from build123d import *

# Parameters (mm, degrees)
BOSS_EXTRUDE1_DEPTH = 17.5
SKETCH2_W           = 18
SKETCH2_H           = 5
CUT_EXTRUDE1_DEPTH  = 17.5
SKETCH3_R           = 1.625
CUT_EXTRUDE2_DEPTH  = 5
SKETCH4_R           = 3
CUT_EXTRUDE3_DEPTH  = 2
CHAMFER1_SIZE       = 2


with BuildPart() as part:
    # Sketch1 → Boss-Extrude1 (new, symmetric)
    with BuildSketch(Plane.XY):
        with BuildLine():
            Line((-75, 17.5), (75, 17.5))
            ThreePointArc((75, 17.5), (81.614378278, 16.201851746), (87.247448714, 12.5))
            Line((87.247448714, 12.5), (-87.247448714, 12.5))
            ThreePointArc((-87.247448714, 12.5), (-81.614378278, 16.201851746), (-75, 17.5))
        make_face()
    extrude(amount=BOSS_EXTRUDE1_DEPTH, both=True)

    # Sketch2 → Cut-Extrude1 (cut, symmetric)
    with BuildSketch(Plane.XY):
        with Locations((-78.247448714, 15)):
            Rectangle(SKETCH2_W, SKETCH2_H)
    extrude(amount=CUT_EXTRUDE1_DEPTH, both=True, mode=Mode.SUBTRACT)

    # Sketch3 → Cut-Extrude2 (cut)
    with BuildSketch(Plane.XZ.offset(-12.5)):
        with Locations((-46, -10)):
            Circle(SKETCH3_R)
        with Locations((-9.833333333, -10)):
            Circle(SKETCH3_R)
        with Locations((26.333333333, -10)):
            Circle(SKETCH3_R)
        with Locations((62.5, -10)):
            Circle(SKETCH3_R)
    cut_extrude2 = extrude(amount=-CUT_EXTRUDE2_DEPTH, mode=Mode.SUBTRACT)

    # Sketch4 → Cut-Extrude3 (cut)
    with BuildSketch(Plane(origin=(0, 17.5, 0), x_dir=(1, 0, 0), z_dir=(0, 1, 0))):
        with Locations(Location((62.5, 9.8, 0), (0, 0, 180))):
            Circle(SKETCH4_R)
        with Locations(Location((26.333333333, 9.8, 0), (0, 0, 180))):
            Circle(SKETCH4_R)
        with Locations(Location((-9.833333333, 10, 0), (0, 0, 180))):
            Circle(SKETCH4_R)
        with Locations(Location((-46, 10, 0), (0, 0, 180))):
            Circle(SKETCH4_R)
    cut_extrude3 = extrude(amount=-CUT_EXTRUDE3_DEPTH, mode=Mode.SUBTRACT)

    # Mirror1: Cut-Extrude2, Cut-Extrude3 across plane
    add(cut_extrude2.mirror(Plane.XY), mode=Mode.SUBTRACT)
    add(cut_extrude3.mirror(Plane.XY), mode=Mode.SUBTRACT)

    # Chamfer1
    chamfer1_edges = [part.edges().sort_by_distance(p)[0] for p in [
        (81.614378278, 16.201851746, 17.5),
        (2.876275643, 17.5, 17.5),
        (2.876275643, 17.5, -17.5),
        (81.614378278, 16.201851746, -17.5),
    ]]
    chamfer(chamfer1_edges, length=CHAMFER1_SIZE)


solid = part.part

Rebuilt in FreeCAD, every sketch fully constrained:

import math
import FreeCAD as App
import Part
import Sketcher
from FreeCAD import Vector


def edges_at(feature, points):
    """Names of the edges that pass closest to the given points."""
    edges = feature.Shape.Edges
    near = lambda p: min(range(len(edges)), key=lambda i: edges[i].distToShape(Part.Vertex(*p))[0])
    return sorted({f"Edge{near(p) + 1}" for p in points})

doc = App.newDocument("Part")
params = doc.addObject("Spreadsheet::Sheet", "Params")
for row, (alias, value) in enumerate([
    ("sketch1_radius", "17.5 mm"),
    ("sketch1_width", "150 mm"),
    ("pad1_length", "35 mm"),
    ("sketch2_width", "18 mm"),
    ("sketch2_height", "5 mm"),
    ("pocket1_length", "35 mm"),
    ("sketch3_diameter", "3.25 mm"),
    ("pocket2_length", "5 mm"),
    ("sketch4_diameter", "6 mm"),
    ("pocket3_length", "2 mm"),
    ("chamfer_size", "2 mm"),
], start=1):
    params.set(f"A{row}", alias)
    params.set(f"B{row}", "=" + value)
    params.setAlias(f"B{row}", alias)

body = doc.addObject("PartDesign::Body", "Body")

sketch1 = body.newObject("Sketcher::SketchObject", "Sketch")
sketch1.AttachmentSupport = (doc.getObject("XY_Plane"), [""])
sketch1.MapMode = "FlatFace"
sketch1.addGeometry(Part.LineSegment(Vector(75, 17.5, 0), Vector(-75, 17.5, 0)), False)
sketch1.addGeometry(Part.ArcOfCircle(Part.Circle(Vector(-75, 0, 0), Vector(0, 0, 1), 17.5), math.radians(90), math.radians(134.415309)), False)
sketch1.addGeometry(Part.LineSegment(Vector(-87.247449, 12.5, 0), Vector(87.247449, 12.5, 0)), False)
sketch1.addGeometry(Part.ArcOfCircle(Part.Circle(Vector(75, 0, 0), Vector(0, 0, 1), 17.5), math.radians(45.584691), math.radians(90)), False)
sketch1.addConstraint(Sketcher.Constraint("Tangent", 0, 2, 1, 1))
sketch1.addConstraint(Sketcher.Constraint("Coincident", 1, 2, 2, 1))
sketch1.addConstraint(Sketcher.Constraint("Coincident", 2, 2, 3, 1))
sketch1.addConstraint(Sketcher.Constraint("Tangent", 3, 2, 0, 1))
sketch1.addConstraint(Sketcher.Constraint("Horizontal", 0))
sketch1.addConstraint(Sketcher.Constraint("Horizontal", 2))
sketch1.addConstraint(Sketcher.Constraint("Equal", 1, 3))
sketch1.addConstraint(Sketcher.Constraint("Symmetric", 1, 3, 3, 3, -1, 1))
sketch1.addConstraint(Sketcher.Constraint("Radius", 1, 17.5))
sketch1.addConstraint(Sketcher.Constraint("DistanceX", 0, 2, 0, 1, 150.0))
sketch1.addConstraint(Sketcher.Constraint("DistanceY", 1, 2, 0, 2, 5.0))
sketch1.setExpression("Constraints[8]", "Params.sketch1_radius")
sketch1.setExpression("Constraints[9]", "Params.sketch1_width")
pad1 = body.newObject("PartDesign::Pad", "Pad")
pad1.Profile = sketch1
pad1.setExpression("Length", "Params.pad1_length")
pad1.Midplane = True

sketch2 = body.newObject("Sketcher::SketchObject", "Sketch001")
sketch2.AttachmentSupport = (doc.getObject("XY_Plane"), [""])
sketch2.MapMode = "FlatFace"
sketch2.addGeometry(Part.LineSegment(Vector(-87.247449, 17.5, 0), Vector(-87.247449, 12.5, 0)), False)
sketch2.addGeometry(Part.LineSegment(Vector(-87.247449, 12.5, 0), Vector(-69.247449, 12.5, 0)), False)
sketch2.addGeometry(Part.LineSegment(Vector(-69.247449, 12.5, 0), Vector(-69.247449, 17.5, 0)), False)
sketch2.addGeometry(Part.LineSegment(Vector(-69.247449, 17.5, 0), Vector(-87.247449, 17.5, 0)), False)
sketch2.addConstraint(Sketcher.Constraint("Coincident", 0, 2, 1, 1))
sketch2.addConstraint(Sketcher.Constraint("Coincident", 1, 2, 2, 1))
sketch2.addConstraint(Sketcher.Constraint("Coincident", 2, 2, 3, 1))
sketch2.addConstraint(Sketcher.Constraint("Coincident", 3, 2, 0, 1))
sketch2.addConstraint(Sketcher.Constraint("Vertical", 0))
sketch2.addConstraint(Sketcher.Constraint("Horizontal", 1))
sketch2.addConstraint(Sketcher.Constraint("Vertical", 2))
sketch2.addConstraint(Sketcher.Constraint("Horizontal", 3))
sketch2.addConstraint(Sketcher.Constraint("DistanceX", 1, 1, 1, 2, 18.0))
sketch2.addConstraint(Sketcher.Constraint("DistanceY", 0, 2, 0, 1, 5.0))
sketch2.addConstraint(Sketcher.Constraint("DistanceY", -1, 1, 0, 2, 12.5))
sketch2.addConstraint(Sketcher.Constraint("DistanceX", 0, 2, -1, 1, 87.247449))
sketch2.setExpression("Constraints[8]", "Params.sketch2_width")
sketch2.setExpression("Constraints[9]", "Params.sketch2_height")
pocket1 = body.newObject("PartDesign::Pocket", "Pocket")
pocket1.Profile = sketch2
pocket1.setExpression("Length", "Params.pocket1_length")
pocket1.Midplane = True

sketch3 = body.newObject("Sketcher::SketchObject", "Sketch002")
sketch3.AttachmentSupport = (doc.getObject("XZ_Plane"), [""])
sketch3.MapMode = "FlatFace"
sketch3.AttachmentOffset = App.Placement(Vector(0, 0, -12.5), App.Rotation())
sketch3.addGeometry(Part.Circle(Vector(-46, -10, 0), Vector(0, 0, 1), 1.625), False)
sketch3.addGeometry(Part.Circle(Vector(-9.833333, -10, 0), Vector(0, 0, 1), 1.625), False)
sketch3.addGeometry(Part.Circle(Vector(26.333333, -10, 0), Vector(0, 0, 1), 1.625), False)
sketch3.addGeometry(Part.Circle(Vector(62.5, -10, 0), Vector(0, 0, 1), 1.625), False)
sketch3.addConstraint(Sketcher.Constraint("Equal", 0, 1))
sketch3.addConstraint(Sketcher.Constraint("Equal", 1, 2))
sketch3.addConstraint(Sketcher.Constraint("Equal", 2, 3))
sketch3.addConstraint(Sketcher.Constraint("Horizontal", 0, 3, 1, 3))
sketch3.addConstraint(Sketcher.Constraint("Horizontal", 1, 3, 2, 3))
sketch3.addConstraint(Sketcher.Constraint("Horizontal", 2, 3, 3, 3))
sketch3.addConstraint(Sketcher.Constraint("Diameter", 0, 3.25))
sketch3.addConstraint(Sketcher.Constraint("DistanceX", 0, 3, -1, 1, 46.0))
sketch3.addConstraint(Sketcher.Constraint("DistanceY", 0, 3, -1, 1, 10.0))
sketch3.addConstraint(Sketcher.Constraint("DistanceX", -1, 1, 3, 3, 62.5))
sketch3.addConstraint(Sketcher.Constraint("DistanceX", 1, 3, -1, 1, 9.833333))
sketch3.addConstraint(Sketcher.Constraint("DistanceX", -1, 1, 2, 3, 26.333333))
sketch3.setExpression("Constraints[6]", "Params.sketch3_diameter")
pocket2 = body.newObject("PartDesign::Pocket", "Pocket001")
pocket2.Profile = sketch3
pocket2.setExpression("Length", "Params.pocket2_length")

sketch4 = body.newObject("Sketcher::SketchObject", "Sketch003")
sketch4.AttachmentSupport = (doc.getObject("XZ_Plane"), [""])
sketch4.MapMode = "FlatFace"
sketch4.AttachmentOffset = App.Placement(Vector(0, 0, -17.5), App.Rotation())
sketch4.addGeometry(Part.Circle(Vector(62.5, -9.8, 0), Vector(0, 0, 1), 3), False)
sketch4.addGeometry(Part.Circle(Vector(26.333333, -9.8, 0), Vector(0, 0, 1), 3), False)
sketch4.addGeometry(Part.Circle(Vector(-9.833333, -10, 0), Vector(0, 0, 1), 3), False)
sketch4.addGeometry(Part.Circle(Vector(-46, -10, 0), Vector(0, 0, 1), 3), False)
sketch4.addConstraint(Sketcher.Constraint("Equal", 0, 1))
sketch4.addConstraint(Sketcher.Constraint("Equal", 1, 2))
sketch4.addConstraint(Sketcher.Constraint("Equal", 2, 3))
sketch4.addConstraint(Sketcher.Constraint("Horizontal", 0, 3, 1, 3))
sketch4.addConstraint(Sketcher.Constraint("Horizontal", 2, 3, 3, 3))
sketch4.addConstraint(Sketcher.Constraint("Diameter", 0, 6.0))
sketch4.addConstraint(Sketcher.Constraint("DistanceY", 2, 3, -1, 1, 10.0))
sketch4.addConstraint(Sketcher.Constraint("DistanceX", 3, 3, -1, 1, 46.0))
sketch4.addConstraint(Sketcher.Constraint("DistanceX", -1, 1, 0, 3, 62.5))
sketch4.addConstraint(Sketcher.Constraint("DistanceY", 0, 3, -1, 1, 9.8))
sketch4.addConstraint(Sketcher.Constraint("DistanceX", -1, 1, 1, 3, 26.333333))
sketch4.addConstraint(Sketcher.Constraint("DistanceX", 2, 3, -1, 1, 9.833333))
sketch4.setExpression("Constraints[5]", "Params.sketch4_diameter")
pocket3 = body.newObject("PartDesign::Pocket", "Pocket002")
pocket3.Profile = sketch4
pocket3.setExpression("Length", "Params.pocket3_length")
pocket3.Reversed = True
doc.recompute()

mirrored = body.newObject("PartDesign::Mirrored", "Mirrored")
mirrored.Originals = [pocket2, pocket3]
mirrored.MirrorPlane = (doc.getObject("XY_Plane"), [""])
body.Tip = mirrored
doc.recompute()

chamfer = body.newObject("PartDesign::Chamfer", "Chamfer")
chamfer.Base = (mirrored, edges_at(mirrored, [
    (81.614, 16.202, 17.5),
    (2.876, 17.5, 17.5),
    (2.876, 17.5, -17.5),
    (81.614, 16.202, -17.5),
]))
chamfer.setExpression("Size", "Params.chamfer_size")

doc.recompute()
